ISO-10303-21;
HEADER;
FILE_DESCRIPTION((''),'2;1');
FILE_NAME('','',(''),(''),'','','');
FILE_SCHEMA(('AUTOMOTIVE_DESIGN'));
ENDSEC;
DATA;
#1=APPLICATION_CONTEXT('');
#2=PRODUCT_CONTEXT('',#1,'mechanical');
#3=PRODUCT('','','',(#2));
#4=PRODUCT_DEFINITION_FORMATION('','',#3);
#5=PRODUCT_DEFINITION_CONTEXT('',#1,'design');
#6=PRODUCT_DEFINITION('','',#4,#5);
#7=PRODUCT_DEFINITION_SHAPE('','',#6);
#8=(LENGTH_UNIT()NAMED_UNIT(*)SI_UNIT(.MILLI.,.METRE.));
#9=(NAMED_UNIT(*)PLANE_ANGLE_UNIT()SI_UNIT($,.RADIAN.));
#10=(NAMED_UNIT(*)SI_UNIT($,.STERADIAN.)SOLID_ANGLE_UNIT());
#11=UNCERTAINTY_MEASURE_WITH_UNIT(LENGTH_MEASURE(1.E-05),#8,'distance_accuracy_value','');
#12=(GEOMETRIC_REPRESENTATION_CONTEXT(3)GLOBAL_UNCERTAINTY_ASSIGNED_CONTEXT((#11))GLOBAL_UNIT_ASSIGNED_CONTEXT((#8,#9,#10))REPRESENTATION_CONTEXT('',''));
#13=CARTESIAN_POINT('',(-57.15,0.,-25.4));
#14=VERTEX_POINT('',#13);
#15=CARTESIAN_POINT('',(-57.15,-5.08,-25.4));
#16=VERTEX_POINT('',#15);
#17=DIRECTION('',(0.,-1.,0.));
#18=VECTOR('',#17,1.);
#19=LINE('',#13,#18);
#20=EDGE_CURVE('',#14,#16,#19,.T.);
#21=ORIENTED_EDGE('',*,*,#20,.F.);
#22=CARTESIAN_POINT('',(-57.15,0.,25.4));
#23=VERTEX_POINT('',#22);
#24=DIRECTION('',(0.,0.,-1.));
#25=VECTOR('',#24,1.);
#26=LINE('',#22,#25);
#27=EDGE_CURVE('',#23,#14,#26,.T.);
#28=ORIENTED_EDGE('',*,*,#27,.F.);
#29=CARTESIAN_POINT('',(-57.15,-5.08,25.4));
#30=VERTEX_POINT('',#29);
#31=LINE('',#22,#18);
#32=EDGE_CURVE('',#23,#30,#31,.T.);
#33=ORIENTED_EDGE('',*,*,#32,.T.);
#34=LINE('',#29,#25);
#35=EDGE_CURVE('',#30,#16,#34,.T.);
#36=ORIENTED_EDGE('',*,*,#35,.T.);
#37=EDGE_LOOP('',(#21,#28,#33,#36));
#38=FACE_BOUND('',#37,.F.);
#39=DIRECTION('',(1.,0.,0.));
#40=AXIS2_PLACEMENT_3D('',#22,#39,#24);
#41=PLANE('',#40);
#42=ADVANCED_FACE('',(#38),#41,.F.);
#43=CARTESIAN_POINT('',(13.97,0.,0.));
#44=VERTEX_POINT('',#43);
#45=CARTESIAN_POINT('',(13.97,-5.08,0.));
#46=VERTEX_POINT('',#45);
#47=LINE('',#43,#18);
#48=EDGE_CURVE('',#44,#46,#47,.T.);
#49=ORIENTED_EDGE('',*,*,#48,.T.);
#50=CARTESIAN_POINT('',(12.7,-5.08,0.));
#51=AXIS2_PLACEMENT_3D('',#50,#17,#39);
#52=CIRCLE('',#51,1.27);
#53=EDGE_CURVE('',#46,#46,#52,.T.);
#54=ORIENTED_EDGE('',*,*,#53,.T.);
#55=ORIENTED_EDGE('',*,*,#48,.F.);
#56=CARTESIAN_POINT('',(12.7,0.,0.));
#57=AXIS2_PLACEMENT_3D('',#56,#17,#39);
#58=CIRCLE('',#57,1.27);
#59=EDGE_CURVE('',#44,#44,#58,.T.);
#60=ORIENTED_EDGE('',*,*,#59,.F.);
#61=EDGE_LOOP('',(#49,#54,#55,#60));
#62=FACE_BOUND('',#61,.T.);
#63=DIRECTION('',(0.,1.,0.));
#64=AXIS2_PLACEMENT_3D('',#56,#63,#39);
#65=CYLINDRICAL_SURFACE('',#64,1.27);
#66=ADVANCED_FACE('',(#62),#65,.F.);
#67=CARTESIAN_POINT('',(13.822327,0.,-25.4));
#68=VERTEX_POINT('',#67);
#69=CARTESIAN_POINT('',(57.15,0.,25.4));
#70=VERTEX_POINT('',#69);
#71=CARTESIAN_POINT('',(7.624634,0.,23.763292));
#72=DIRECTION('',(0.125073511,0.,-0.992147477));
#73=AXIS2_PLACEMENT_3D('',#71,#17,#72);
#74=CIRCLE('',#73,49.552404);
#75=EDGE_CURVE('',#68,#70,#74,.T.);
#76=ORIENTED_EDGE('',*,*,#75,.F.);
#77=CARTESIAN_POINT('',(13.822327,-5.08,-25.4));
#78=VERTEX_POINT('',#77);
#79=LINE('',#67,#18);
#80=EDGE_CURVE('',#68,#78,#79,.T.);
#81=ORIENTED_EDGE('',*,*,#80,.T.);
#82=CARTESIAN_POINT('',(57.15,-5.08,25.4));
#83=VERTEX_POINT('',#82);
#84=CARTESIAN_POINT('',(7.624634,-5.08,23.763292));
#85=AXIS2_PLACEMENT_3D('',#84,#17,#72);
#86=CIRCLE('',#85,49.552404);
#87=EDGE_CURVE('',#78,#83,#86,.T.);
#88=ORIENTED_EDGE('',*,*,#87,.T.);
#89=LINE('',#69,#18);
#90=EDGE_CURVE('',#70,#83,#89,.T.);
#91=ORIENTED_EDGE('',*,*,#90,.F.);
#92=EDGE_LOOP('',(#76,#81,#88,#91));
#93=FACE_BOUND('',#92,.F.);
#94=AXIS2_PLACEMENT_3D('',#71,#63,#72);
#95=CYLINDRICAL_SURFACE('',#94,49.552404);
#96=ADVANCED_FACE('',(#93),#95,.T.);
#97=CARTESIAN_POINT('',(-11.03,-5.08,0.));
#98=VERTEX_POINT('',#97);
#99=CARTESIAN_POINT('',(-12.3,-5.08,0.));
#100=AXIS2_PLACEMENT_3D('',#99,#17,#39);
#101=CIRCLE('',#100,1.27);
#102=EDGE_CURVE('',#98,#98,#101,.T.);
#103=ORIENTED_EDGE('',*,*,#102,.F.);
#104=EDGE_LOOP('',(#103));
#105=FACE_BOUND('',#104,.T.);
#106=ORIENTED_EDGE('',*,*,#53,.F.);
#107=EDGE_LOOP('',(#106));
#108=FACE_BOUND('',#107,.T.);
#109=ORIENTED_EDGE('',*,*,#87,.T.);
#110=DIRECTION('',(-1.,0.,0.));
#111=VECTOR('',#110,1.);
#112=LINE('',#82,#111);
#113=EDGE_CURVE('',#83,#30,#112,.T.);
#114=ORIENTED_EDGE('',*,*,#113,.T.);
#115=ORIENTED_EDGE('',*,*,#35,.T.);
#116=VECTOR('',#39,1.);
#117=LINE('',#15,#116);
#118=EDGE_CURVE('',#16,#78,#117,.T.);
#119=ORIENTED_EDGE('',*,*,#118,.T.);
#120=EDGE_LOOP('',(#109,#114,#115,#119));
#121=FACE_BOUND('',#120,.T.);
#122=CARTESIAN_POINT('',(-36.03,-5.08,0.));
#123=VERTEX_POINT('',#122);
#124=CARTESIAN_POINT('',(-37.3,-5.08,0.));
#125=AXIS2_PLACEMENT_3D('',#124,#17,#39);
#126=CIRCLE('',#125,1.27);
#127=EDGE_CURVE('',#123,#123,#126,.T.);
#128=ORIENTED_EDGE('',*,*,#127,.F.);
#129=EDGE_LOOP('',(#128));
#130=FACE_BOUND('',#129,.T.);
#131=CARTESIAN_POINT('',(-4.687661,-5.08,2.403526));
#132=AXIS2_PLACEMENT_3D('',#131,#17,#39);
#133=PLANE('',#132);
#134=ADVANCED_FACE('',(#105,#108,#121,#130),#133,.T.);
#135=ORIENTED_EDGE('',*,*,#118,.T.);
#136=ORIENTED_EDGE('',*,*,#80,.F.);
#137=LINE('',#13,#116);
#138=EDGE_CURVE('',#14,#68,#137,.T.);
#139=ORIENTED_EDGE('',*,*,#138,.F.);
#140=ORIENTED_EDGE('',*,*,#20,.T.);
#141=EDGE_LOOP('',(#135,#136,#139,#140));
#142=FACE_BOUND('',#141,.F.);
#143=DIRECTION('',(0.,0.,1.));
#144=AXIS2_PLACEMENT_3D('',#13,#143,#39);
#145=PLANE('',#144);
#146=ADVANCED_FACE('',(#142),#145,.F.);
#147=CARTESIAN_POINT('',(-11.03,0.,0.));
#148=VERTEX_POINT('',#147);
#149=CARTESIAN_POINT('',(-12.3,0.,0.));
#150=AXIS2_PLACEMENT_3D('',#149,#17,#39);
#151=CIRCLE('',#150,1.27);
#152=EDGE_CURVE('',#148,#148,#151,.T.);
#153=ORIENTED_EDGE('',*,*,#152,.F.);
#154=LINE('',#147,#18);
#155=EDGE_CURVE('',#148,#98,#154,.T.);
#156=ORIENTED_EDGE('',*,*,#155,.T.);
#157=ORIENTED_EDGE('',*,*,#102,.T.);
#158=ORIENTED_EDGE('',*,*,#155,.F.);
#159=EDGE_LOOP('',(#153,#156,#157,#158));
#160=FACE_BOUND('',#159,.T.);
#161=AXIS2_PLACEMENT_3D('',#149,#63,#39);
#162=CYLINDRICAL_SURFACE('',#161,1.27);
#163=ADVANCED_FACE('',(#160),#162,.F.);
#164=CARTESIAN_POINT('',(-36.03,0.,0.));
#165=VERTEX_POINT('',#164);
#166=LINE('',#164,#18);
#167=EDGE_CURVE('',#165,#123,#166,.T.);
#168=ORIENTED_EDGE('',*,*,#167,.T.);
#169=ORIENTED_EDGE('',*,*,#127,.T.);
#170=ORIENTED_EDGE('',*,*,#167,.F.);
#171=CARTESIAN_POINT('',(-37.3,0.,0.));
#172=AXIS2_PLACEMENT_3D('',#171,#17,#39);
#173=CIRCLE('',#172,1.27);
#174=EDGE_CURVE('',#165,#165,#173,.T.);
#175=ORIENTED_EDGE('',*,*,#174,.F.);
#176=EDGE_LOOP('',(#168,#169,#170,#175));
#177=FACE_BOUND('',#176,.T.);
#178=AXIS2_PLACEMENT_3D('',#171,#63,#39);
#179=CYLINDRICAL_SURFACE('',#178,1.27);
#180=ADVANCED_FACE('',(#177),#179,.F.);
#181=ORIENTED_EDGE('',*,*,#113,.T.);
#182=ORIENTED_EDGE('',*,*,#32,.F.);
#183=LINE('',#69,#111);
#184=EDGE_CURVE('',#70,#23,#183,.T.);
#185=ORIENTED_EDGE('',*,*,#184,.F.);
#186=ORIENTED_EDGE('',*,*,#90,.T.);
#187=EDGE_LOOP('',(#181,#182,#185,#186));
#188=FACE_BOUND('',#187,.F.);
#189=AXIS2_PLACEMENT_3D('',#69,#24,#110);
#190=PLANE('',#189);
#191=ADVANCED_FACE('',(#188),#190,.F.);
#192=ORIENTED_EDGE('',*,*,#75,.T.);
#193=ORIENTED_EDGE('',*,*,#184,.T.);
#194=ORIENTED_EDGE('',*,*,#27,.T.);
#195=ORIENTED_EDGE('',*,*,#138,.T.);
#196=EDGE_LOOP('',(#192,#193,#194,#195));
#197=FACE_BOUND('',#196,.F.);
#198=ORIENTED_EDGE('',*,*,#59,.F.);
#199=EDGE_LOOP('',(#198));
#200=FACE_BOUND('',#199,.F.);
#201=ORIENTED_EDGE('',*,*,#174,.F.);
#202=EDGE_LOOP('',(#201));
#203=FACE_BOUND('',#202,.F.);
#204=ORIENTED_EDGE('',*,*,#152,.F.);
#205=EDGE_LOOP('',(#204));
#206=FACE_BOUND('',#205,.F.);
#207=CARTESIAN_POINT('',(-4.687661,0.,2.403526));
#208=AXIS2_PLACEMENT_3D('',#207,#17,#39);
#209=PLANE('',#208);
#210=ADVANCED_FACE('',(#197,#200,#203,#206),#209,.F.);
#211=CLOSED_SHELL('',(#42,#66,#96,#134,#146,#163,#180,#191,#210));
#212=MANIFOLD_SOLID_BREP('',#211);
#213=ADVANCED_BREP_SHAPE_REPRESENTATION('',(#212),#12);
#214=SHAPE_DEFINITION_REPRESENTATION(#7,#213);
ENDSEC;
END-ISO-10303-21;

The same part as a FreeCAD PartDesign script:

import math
import FreeCAD as App
import Part
import Sketcher
Q = App.Units.Quantity

doc = App.newDocument("Part")
body = doc.addObject("PartDesign::Body", "Body")

# Sketch on XZ plane
sketch1 = doc.addObject("Sketcher::SketchObject", "Sketch")
body.addObject(sketch1)
sketch1.AttachmentSupport = (doc.XZ_Plane, [""])
sketch1.MapMode = "FlatFace"
sketch1.addGeometry([
    Part.LineSegment(App.Vector(-57.15, -25.4, 0), App.Vector(13.822327, -25.4, 0)),  # 0
    Part.ArcOfCircle(Part.Circle(App.Vector(7.624634, 23.763292, 0), App.Vector(0, 0, 1), 49.552404), math.radians(-82.814999), math.radians(1.892815)),  # 1
    Part.LineSegment(App.Vector(57.15, 25.4, 0), App.Vector(-57.15, 25.4, 0)),  # 2
    Part.LineSegment(App.Vector(-57.15, 25.4, 0), App.Vector(-57.15, -25.4, 0)),  # 3
    Part.Circle(App.Vector(-37.3, 0, 0), App.Vector(0, 0, 1), 1.27),  # 4
    Part.Circle(App.Vector(-12.3, 0, 0), App.Vector(0, 0, 1), 1.27),  # 5
    Part.Circle(App.Vector(12.7, 0, 0), App.Vector(0, 0, 1), 1.27),  # 6
], False)
sketch1.addConstraint([
    Sketcher.Constraint("Coincident", 0, 2, 1, 1),
    Sketcher.Constraint("Coincident", 1, 2, 2, 1),
    Sketcher.Constraint("Coincident", 2, 2, 3, 1),
    Sketcher.Constraint("Coincident", 3, 2, 0, 1),
    Sketcher.Constraint("Horizontal", 0),
    Sketcher.Constraint("Horizontal", 2),
    Sketcher.Constraint("Vertical", 3),
    Sketcher.Constraint("Equal", 4, 5),
    Sketcher.Constraint("Equal", 5, 6),
    Sketcher.Constraint("Symmetric", 1, 2, 3, 2, -1, 1),
    Sketcher.Constraint("PointOnObject", 4, 3, -1),
    Sketcher.Constraint("PointOnObject", 5, 3, -1),
    Sketcher.Constraint("PointOnObject", 6, 3, -1),
    Sketcher.Constraint("Diameter", 4, Q("0.1 in")),
    Sketcher.Constraint("DistanceY", 3, 2, 3, 1, Q("2 in")),
    Sketcher.Constraint("DistanceX", 2, 2, 2, 1, Q("4.5 in")),
    Sketcher.Constraint("DistanceX", -1, 1, 6, 3, Q("0.5 in")),
    Sketcher.Constraint("Radius", 1, Q("49.552404 mm")),
    Sketcher.Constraint("DistanceX", 4, 3, -1, 1, Q("37.3 mm")),
    Sketcher.Constraint("DistanceX", 5, 3, -1, 1, Q("12.3 mm")),
    Sketcher.Constraint("DistanceX", 0, 1, 0, 2, Q("70.972327 mm")),
])
pad1 = doc.addObject("PartDesign::Pad", "Pad")
body.addObject(pad1)
pad1.Profile = sketch1
pad1.Length = Q("0.2 in")

doc.recompute()
